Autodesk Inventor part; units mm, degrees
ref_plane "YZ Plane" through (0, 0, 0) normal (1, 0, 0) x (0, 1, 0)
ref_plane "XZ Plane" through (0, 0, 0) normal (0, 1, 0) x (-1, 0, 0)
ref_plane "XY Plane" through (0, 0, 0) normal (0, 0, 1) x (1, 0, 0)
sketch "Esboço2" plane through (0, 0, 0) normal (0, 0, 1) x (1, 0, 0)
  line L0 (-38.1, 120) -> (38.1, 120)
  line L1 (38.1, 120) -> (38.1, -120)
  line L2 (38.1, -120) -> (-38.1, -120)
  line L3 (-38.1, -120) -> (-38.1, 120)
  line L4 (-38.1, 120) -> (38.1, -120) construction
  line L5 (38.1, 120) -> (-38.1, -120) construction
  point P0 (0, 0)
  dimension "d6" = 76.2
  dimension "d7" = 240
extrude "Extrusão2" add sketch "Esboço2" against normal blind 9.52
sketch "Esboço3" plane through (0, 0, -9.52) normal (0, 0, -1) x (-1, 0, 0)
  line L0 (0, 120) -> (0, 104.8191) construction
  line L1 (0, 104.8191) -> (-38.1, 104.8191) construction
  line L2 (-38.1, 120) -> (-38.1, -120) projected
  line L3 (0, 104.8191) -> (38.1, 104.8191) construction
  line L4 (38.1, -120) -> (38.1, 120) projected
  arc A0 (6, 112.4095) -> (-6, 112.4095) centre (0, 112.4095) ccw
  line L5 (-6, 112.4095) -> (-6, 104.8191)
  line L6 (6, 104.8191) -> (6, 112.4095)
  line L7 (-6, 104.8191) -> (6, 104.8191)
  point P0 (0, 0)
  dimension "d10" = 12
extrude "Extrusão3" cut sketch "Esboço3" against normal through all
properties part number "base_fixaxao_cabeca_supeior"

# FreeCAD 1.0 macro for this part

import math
import FreeCAD as App
import Part
import Sketcher

V = App.Vector

doc = App.newDocument("Part")
body = doc.addObject("PartDesign::Body", "Body")

sketch1 = body.newObject("Sketcher::SketchObject", "Sketch")
sketch1.AttachmentSupport = (doc.getObject("XY_Plane"), [""])
sketch1.MapMode = "FlatFace"
sketch1.addGeometry([
    Part.LineSegment(V(38, 120, 0), V(-38, 120, 0)),
    Part.LineSegment(V(-38, 120, 0), V(-38, -120, 0)),
    Part.LineSegment(V(-38, -120, 0), V(38, -120, 0)),
    Part.LineSegment(V(38, -120, 0), V(38, 120, 0)),
], False)
sketch1.addConstraint([
    Sketcher.Constraint("Coincident", 0, 2, 1, 1),
    Sketcher.Constraint("Coincident", 1, 2, 2, 1),
    Sketcher.Constraint("Coincident", 2, 2, 3, 1),
    Sketcher.Constraint("Coincident", 3, 2, 0, 1),
    Sketcher.Constraint("Horizontal", 0),
    Sketcher.Constraint("Vertical", 1),
    Sketcher.Constraint("Horizontal", 2),
    Sketcher.Constraint("Vertical", 3),
    Sketcher.Constraint("Symmetric", 0, 2, 2, 2, -1, 1),
    Sketcher.Constraint("DistanceY", 1, 2, 1, 1, 240.0),
    Sketcher.Constraint("DistanceX", 0, 2, 0, 1, 76.2),
])
pad1 = body.newObject("PartDesign::Pad", "Pad")
pad1.Profile = sketch1
pad1.Length = 9.52
pad1.Reversed = True

sketch2 = body.newObject("Sketcher::SketchObject", "Sketch001")
sketch2.AttachmentSupport = (doc.getObject("XY_Plane"), [""])
sketch2.MapMode = "FlatFace"
sketch2.AttachmentOffset = App.Placement(V(0, 0, -9.52), App.Rotation())
sketch2.addGeometry([
    Part.LineSegment(V(-6, 105, 0), V(-6, 112, 0)),
    Part.ArcOfCircle(Part.Circle(V(0, 112, 0), V(0, 0, 1), 6), math.radians(0), math.radians(180)),
    Part.LineSegment(V(6, 112, 0), V(6, 105, 0)),
    Part.LineSegment(V(6, 105, 0), V(-6, 105, 0)),
], False)
sketch2.addConstraint([
    Sketcher.Constraint("Tangent", 0, 2, 1, 2),
    Sketcher.Constraint("Tangent", 1, 1, 2, 1),
    Sketcher.Constraint("Coincident", 2, 2, 3, 1),
    Sketcher.Constraint("Coincident", 3, 2, 0, 1),
    Sketcher.Constraint("Vertical", 0),
    Sketcher.Constraint("Vertical", 2),
    Sketcher.Constraint("Horizontal", 3),
    Sketcher.Constraint("PointOnObject", 1, 3, -2),
    Sketcher.Constraint("Radius", 1, 6.0),
    Sketcher.Constraint("DistanceY", 0, 1, 0, 2, 7.5904),
    Sketcher.Constraint("DistanceY", -1, 1, 2, 2, 104.819),
])
pocket1 = body.newObject("PartDesign::Pocket", "Pocket")
pocket1.Profile = sketch2
pocket1.Type = "ThroughAll"
pocket1.Reversed = True

doc.recompute()
